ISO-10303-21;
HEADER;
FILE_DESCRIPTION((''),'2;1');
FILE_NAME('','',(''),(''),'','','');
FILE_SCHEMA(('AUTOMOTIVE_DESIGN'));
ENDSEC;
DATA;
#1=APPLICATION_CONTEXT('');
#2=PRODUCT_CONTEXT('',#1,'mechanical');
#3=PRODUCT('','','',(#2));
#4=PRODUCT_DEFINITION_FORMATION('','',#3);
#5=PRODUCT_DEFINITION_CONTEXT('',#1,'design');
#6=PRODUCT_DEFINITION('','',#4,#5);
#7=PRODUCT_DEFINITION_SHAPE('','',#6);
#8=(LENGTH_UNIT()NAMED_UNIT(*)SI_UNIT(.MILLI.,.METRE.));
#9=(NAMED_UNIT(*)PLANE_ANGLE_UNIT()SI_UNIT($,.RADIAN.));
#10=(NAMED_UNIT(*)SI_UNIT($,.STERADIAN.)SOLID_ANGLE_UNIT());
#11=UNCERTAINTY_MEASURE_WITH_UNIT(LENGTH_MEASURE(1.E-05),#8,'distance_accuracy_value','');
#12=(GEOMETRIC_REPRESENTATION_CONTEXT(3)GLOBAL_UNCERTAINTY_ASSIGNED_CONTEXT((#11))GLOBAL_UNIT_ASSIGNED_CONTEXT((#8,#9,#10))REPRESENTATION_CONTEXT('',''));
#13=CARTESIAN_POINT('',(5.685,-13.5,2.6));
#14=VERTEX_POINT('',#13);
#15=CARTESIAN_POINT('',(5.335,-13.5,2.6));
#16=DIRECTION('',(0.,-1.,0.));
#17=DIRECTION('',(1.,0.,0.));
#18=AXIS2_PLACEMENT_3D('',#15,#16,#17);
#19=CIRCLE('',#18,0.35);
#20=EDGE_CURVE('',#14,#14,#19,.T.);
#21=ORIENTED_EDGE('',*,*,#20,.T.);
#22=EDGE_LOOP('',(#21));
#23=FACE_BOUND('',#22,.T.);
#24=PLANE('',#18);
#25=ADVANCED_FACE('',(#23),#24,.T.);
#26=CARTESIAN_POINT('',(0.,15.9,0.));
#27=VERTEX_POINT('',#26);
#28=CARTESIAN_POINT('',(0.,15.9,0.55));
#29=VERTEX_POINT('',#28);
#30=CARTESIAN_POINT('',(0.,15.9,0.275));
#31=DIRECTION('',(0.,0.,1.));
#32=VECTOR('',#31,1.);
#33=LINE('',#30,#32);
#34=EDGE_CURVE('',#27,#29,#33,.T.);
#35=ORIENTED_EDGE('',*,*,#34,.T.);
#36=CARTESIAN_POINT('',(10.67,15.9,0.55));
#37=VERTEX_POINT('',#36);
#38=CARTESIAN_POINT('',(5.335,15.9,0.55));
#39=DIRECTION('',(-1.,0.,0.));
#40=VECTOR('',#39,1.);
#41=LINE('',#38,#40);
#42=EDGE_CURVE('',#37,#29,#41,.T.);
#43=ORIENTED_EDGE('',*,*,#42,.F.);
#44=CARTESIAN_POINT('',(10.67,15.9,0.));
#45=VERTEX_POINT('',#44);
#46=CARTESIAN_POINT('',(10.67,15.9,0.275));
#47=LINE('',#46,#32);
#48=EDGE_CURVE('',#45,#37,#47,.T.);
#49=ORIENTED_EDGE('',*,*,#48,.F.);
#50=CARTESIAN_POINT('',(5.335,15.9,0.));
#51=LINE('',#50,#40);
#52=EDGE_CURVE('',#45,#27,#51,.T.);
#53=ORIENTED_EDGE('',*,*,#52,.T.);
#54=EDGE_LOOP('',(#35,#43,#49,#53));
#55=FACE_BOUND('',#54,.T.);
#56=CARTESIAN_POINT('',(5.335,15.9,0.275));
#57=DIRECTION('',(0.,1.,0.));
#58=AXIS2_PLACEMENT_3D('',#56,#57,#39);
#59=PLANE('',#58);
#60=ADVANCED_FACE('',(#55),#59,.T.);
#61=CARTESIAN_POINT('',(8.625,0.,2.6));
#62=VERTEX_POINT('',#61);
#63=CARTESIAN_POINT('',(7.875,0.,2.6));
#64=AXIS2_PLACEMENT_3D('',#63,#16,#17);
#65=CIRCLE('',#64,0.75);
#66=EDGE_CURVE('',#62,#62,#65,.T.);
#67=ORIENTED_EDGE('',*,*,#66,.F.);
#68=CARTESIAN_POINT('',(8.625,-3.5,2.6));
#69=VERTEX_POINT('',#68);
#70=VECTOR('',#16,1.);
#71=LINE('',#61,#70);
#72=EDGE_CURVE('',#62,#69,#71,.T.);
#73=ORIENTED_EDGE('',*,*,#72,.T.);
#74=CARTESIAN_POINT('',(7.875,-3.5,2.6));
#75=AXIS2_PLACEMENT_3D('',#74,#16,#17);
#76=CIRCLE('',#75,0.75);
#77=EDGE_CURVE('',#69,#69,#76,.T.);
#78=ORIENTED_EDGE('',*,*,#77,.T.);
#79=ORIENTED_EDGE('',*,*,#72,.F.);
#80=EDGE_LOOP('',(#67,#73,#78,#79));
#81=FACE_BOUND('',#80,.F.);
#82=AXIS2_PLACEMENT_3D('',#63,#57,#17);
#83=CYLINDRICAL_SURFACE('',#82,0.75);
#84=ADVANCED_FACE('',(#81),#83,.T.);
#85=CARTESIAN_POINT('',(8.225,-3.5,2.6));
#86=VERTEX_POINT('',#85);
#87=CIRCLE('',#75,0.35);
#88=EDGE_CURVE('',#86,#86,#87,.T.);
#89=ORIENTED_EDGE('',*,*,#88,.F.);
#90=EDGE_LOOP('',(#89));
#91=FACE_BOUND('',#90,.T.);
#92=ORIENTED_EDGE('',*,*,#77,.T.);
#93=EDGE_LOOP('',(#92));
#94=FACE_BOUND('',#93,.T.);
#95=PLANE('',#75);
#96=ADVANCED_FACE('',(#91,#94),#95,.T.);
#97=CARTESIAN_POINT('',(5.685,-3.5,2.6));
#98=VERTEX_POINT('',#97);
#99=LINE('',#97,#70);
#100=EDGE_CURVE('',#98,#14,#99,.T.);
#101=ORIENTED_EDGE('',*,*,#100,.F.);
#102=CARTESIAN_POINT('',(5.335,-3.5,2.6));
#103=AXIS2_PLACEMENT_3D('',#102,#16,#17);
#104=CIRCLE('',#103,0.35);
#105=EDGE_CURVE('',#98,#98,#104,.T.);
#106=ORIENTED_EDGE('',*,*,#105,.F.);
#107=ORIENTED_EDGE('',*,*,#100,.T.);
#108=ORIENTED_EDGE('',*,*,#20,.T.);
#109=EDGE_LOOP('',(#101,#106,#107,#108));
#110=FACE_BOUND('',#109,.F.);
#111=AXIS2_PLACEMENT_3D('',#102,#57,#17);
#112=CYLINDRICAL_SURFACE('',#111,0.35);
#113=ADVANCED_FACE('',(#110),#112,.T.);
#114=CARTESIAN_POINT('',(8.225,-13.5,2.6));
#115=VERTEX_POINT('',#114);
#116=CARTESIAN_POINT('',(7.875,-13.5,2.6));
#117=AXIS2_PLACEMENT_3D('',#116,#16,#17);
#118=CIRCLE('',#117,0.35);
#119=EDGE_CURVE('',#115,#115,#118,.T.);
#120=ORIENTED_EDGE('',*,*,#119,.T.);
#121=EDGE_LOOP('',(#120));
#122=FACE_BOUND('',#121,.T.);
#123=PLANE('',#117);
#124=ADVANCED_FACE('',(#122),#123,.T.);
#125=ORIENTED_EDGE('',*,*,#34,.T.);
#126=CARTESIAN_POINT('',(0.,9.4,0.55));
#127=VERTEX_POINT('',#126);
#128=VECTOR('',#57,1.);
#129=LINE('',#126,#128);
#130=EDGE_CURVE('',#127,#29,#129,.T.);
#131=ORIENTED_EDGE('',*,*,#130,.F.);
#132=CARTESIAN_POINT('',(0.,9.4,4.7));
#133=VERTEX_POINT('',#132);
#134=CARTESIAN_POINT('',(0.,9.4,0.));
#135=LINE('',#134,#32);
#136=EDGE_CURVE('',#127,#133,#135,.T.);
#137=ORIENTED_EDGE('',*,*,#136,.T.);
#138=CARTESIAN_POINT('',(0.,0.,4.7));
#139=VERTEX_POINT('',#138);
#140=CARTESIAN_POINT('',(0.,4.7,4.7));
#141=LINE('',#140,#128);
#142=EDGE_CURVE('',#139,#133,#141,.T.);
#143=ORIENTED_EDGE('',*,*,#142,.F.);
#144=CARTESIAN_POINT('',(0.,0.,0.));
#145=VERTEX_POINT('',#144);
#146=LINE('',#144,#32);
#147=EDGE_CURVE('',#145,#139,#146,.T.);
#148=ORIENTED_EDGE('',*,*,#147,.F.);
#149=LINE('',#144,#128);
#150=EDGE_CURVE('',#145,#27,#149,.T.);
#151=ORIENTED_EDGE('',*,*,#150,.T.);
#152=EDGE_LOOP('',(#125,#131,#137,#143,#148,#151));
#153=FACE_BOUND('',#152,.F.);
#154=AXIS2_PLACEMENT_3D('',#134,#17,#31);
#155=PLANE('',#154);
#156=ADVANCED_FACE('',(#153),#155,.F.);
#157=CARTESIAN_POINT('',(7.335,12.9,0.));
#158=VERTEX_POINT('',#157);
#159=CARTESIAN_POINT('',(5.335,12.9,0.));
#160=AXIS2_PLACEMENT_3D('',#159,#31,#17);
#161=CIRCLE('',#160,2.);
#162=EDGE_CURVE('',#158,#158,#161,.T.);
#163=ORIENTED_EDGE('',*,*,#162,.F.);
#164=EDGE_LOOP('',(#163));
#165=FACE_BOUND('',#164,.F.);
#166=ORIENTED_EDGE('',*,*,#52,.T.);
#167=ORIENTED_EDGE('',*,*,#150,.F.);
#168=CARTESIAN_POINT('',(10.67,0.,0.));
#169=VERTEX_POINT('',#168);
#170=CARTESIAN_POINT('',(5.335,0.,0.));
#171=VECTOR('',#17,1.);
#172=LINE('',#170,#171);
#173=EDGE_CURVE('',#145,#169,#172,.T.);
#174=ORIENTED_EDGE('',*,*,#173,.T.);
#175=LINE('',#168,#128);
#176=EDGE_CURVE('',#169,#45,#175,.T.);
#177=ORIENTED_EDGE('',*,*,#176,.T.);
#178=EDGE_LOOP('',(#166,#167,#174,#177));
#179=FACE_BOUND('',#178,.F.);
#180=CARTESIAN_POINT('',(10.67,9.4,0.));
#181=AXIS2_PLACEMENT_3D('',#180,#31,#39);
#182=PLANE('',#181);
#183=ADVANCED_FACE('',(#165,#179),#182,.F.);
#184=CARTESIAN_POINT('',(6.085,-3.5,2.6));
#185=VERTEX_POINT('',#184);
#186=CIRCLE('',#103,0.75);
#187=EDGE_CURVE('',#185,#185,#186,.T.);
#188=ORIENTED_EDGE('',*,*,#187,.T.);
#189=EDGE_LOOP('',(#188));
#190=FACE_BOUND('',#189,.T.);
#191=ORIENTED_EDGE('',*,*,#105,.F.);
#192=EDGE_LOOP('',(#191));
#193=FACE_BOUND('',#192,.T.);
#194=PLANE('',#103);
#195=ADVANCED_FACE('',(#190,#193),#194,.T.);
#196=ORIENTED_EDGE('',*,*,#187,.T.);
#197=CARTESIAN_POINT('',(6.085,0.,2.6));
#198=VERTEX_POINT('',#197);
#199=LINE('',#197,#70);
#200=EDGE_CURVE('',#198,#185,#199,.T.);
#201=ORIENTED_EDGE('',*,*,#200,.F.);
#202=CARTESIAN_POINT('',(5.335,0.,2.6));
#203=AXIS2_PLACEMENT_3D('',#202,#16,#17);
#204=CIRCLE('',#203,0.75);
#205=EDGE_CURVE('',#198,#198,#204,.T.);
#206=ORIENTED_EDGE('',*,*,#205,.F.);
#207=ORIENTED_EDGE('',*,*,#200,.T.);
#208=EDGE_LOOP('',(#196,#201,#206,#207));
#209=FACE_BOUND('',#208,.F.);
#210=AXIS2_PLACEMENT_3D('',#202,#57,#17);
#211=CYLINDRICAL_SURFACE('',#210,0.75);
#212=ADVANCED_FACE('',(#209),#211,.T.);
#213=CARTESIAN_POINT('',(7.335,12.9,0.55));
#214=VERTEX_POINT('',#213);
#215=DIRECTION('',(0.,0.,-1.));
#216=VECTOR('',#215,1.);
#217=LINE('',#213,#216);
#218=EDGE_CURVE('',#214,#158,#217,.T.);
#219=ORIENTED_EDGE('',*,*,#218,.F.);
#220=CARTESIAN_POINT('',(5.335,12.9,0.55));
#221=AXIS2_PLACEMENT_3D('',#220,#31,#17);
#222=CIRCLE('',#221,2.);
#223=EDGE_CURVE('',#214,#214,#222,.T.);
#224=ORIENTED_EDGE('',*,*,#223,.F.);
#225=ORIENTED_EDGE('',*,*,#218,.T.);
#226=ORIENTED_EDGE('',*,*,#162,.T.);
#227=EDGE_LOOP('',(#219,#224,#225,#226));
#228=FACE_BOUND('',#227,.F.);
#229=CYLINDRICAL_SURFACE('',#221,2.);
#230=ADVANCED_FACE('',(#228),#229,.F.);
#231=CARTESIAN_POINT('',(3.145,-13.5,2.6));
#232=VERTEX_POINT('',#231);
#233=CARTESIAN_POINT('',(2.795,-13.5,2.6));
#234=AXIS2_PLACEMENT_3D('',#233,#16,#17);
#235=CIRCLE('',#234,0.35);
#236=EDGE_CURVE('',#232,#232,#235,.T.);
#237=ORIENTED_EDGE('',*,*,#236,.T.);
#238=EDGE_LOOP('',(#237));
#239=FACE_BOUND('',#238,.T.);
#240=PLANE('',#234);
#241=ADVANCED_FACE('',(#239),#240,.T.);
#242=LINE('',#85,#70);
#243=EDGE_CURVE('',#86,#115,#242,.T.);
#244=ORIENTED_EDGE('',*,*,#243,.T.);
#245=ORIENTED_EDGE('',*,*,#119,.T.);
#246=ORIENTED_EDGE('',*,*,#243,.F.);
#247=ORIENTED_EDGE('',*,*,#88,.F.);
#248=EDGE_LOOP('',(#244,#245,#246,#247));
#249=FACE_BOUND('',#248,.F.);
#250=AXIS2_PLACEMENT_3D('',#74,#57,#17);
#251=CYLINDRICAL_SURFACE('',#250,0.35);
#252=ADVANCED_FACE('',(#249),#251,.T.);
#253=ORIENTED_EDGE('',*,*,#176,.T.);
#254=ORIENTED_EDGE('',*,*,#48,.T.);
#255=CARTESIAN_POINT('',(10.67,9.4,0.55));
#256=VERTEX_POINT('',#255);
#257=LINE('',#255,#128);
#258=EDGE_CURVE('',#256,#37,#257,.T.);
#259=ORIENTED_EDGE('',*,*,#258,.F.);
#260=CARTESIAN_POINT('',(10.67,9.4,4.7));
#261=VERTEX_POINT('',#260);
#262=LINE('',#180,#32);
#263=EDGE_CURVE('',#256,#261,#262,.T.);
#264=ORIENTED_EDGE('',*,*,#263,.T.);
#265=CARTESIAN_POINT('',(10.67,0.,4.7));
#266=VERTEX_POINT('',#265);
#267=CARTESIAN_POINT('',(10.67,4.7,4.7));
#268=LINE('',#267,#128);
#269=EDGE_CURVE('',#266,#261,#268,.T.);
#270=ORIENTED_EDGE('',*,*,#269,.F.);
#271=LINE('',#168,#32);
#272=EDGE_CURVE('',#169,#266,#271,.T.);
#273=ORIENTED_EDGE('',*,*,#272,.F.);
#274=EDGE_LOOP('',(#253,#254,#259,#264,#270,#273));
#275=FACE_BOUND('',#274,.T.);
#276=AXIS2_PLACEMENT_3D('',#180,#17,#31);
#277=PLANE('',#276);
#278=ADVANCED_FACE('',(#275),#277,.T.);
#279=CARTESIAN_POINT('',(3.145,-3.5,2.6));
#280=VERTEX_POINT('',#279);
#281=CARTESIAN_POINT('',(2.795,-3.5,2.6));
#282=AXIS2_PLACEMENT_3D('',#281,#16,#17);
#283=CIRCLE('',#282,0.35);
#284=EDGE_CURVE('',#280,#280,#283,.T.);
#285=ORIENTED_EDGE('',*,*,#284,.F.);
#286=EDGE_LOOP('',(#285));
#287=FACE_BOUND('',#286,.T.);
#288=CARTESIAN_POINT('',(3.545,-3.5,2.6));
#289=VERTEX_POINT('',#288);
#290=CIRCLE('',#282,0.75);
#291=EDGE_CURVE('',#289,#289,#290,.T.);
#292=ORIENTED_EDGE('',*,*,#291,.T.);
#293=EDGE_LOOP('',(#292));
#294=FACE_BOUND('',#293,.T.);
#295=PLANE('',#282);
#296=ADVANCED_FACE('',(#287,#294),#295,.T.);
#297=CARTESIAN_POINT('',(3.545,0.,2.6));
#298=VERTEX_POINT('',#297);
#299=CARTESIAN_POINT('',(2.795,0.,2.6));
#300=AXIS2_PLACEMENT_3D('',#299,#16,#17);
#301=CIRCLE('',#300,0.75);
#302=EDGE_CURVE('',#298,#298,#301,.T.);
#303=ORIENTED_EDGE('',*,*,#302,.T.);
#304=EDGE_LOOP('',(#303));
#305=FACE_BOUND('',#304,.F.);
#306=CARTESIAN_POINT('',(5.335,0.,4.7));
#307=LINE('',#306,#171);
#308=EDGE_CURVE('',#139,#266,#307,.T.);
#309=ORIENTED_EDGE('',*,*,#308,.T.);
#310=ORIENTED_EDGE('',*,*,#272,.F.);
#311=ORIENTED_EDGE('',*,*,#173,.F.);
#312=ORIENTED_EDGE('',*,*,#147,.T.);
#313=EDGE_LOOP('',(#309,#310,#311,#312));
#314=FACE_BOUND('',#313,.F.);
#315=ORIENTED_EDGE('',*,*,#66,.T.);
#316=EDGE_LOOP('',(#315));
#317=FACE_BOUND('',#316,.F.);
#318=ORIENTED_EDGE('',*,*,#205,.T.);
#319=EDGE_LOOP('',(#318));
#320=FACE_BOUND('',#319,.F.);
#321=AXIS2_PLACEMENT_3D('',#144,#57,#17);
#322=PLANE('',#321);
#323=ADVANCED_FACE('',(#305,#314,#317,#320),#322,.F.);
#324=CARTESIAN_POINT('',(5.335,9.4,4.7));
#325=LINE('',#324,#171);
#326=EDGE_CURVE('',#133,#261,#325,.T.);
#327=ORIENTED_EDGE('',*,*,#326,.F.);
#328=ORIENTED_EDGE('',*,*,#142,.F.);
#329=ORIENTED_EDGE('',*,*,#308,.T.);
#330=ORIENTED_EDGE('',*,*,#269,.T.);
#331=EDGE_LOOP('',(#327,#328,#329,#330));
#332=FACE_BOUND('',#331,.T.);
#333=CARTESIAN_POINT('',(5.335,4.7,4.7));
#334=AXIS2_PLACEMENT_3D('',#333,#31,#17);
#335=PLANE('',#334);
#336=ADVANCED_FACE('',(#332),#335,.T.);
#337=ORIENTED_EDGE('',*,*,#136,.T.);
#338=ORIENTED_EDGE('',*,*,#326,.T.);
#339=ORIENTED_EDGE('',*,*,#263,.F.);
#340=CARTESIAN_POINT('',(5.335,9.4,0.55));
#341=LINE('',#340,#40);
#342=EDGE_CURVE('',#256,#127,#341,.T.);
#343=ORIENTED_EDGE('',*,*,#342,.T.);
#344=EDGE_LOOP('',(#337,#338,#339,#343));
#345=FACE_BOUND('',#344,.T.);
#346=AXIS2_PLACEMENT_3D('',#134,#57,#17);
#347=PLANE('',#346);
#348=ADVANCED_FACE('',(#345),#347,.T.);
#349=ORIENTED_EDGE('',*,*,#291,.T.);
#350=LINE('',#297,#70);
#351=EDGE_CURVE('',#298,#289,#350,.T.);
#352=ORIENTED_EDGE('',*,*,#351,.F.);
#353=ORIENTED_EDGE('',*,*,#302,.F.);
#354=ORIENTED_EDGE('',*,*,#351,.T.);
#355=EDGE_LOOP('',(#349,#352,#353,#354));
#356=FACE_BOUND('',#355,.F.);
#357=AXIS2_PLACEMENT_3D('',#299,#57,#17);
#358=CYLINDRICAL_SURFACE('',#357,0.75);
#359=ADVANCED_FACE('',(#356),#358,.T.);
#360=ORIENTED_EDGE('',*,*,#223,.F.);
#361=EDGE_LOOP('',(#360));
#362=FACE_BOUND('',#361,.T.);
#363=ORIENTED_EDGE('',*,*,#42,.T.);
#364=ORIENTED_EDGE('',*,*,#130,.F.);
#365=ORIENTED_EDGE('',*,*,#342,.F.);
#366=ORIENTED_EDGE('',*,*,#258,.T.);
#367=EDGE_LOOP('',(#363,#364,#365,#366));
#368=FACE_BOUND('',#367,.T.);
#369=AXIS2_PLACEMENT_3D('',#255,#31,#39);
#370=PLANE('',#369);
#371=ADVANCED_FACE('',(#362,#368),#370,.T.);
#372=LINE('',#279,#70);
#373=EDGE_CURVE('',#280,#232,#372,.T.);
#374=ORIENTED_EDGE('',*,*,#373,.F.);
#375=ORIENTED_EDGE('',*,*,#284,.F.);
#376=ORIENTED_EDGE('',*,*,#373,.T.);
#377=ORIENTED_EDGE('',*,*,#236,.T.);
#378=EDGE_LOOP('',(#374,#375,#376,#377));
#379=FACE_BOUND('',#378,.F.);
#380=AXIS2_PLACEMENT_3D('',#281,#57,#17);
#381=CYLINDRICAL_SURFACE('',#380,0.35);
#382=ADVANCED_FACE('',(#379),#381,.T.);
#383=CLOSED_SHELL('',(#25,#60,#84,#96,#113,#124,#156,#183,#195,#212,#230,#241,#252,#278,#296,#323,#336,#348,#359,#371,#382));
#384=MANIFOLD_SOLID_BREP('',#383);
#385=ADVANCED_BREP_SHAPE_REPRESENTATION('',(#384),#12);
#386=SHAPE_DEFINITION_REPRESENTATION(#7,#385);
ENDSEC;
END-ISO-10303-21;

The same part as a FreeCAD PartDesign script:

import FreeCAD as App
import Part
import Sketcher

V = App.Vector

doc = App.newDocument("Part")
body = doc.addObject("PartDesign::Body", "Body")

# Sketch on XY plane
sketch1 = doc.addObject("Sketcher::SketchObject", "Sketch")
body.addObject(sketch1)
sketch1.AttachmentSupport = (doc.XY_Plane, [""])
sketch1.MapMode = "FlatFace"
sketch1.addGeometry(Part.LineSegment(V(0, 9, 0), V(0, 0, 0)), False)
sketch1.addGeometry(Part.LineSegment(V(0, 0, 0), V(11, 0, 0)), False)
sketch1.addGeometry(Part.LineSegment(V(11, 0, 0), V(11, 9, 0)), False)
sketch1.addGeometry(Part.LineSegment(V(11, 9, 0), V(0, 9, 0)), False)
sketch1.addConstraint(Sketcher.Constraint("Coincident", 0, 2, 1, 1))
sketch1.addConstraint(Sketcher.Constraint("Coincident", 1, 2, 2, 1))
sketch1.addConstraint(Sketcher.Constraint("Coincident", 2, 2, 3, 1))
sketch1.addConstraint(Sketcher.Constraint("Coincident", 3, 2, 0, 1))
sketch1.addConstraint(Sketcher.Constraint("Vertical", 0))
sketch1.addConstraint(Sketcher.Constraint("Horizontal", 1))
sketch1.addConstraint(Sketcher.Constraint("Vertical", 2))
sketch1.addConstraint(Sketcher.Constraint("Horizontal", 3))
sketch1.addConstraint(Sketcher.Constraint("Coincident", 0, 2, -1, 1))
sketch1.addConstraint(Sketcher.Constraint("DistanceY", 0, 2, 0, 1, 9.4))
sketch1.addConstraint(Sketcher.Constraint("DistanceX", 1, 1, 1, 2, 10.67))
pad1 = doc.addObject("PartDesign::Pad", "Pad")
body.addObject(pad1)
pad1.Profile = sketch1
pad1.Length = 4.7

# Sketch on XZ plane
sketch2 = doc.addObject("Sketcher::SketchObject", "Sketch001")
body.addObject(sketch2)
sketch2.AttachmentSupport = (doc.XZ_Plane, [""])
sketch2.MapMode = "FlatFace"
sketch2.addGeometry(Part.Circle(V(2.8, 2.6, 0), V(0, 0, 1), 0.8), False)
sketch2.addGeometry(Part.Circle(V(5.3, 2.6, 0), V(0, 0, 1), 0.8), False)
sketch2.addGeometry(Part.Circle(V(7.9, 2.6, 0), V(0, 0, 1), 0.8), False)
sketch2.addConstraint(Sketcher.Constraint("Equal", 0, 1))
sketch2.addConstraint(Sketcher.Constraint("Equal", 1, 2))
sketch2.addConstraint(Sketcher.Constraint("Horizontal", 0, 3, 1, 3))
sketch2.addConstraint(Sketcher.Constraint("Horizontal", 1, 3, 2, 3))
sketch2.addConstraint(Sketcher.Constraint("Diameter", 0, 1.5))
sketch2.addConstraint(Sketcher.Constraint("DistanceY", -1, 1, 0, 3, 2.6))
sketch2.addConstraint(Sketcher.Constraint("DistanceX", 0, 3, 1, 3, 2.54))
sketch2.addConstraint(Sketcher.Constraint("DistanceX", 1, 3, 2, 3, 2.54))
sketch2.addConstraint(Sketcher.Constraint("DistanceX", -1, 1, 0, 3, 2.795))
pad2 = doc.addObject("PartDesign::Pad", "Pad001")
body.addObject(pad2)
pad2.Profile = sketch2
pad2.Length = 3.5

# Sketch on XZ plane
sketch3 = doc.addObject("Sketcher::SketchObject", "Sketch002")
body.addObject(sketch3)
sketch3.AttachmentSupport = (doc.XZ_Plane, [""])
sketch3.MapMode = "FlatFace"
sketch3.AttachmentOffset = App.Placement(V(0, 0, 3.5), App.Rotation())
sketch3.addGeometry(Part.Circle(V(2.79, 2.6, 0), V(0, 0, 1), 0.35), False)
sketch3.addGeometry(Part.Circle(V(5.33, 2.6, 0), V(0, 0, 1), 0.35), False)
sketch3.addGeometry(Part.Circle(V(7.88, 2.6, 0), V(0, 0, 1), 0.35), False)
sketch3.addConstraint(Sketcher.Constraint("Equal", 0, 1))
sketch3.addConstraint(Sketcher.Constraint("Equal", 1, 2))
sketch3.addConstraint(Sketcher.Constraint("Horizontal", 0, 3, 1, 3))
sketch3.addConstraint(Sketcher.Constraint("Horizontal", 1, 3, 2, 3))
sketch3.addConstraint(Sketcher.Constraint("Diameter", 0, 0.7))
sketch3.addConstraint(Sketcher.Constraint("DistanceY", -1, 1, 0, 3, 2.6))
sketch3.addConstraint(Sketcher.Constraint("DistanceX", 0, 3, 1, 3, 2.54))
sketch3.addConstraint(Sketcher.Constraint("DistanceX", 1, 3, 2, 3, 2.54))
sketch3.addConstraint(Sketcher.Constraint("DistanceX", -1, 1, 0, 3, 2.795))
pad3 = doc.addObject("PartDesign::Pad", "Pad002")
body.addObject(pad3)
pad3.Profile = sketch3
pad3.Length = 10

# Sketch on XZ plane
sketch4 = doc.addObject("Sketcher::SketchObject", "Sketch003")
body.addObject(sketch4)
sketch4.AttachmentSupport = (doc.XZ_Plane, [""])
sketch4.MapMode = "FlatFace"
sketch4.AttachmentOffset = App.Placement(V(0, 0, -9.4), App.Rotation())
sketch4.addGeometry(Part.LineSegment(V(10.7, 0.6, 0), V(10.7, 0, 0)), False)
sketch4.addGeometry(Part.LineSegment(V(10.7, 0, 0), V(0, 0, 0)), False)
sketch4.addGeometry(Part.LineSegment(V(0, 0, 0), V(0, 0.6, 0)), False)
sketch4.addGeometry(Part.LineSegment(V(0, 0.6, 0), V(10.7, 0.6, 0)), False)
sketch4.addConstraint(Sketcher.Constraint("Coincident", 0, 2, 1, 1))
sketch4.addConstraint(Sketcher.Constraint("Coincident", 1, 2, 2, 1))
sketch4.addConstraint(Sketcher.Constraint("Coincident", 2, 2, 3, 1))
sketch4.addConstraint(Sketcher.Constraint("Coincident", 3, 2, 0, 1))
sketch4.addConstraint(Sketcher.Constraint("Vertical", 0))
sketch4.addConstraint(Sketcher.Constraint("Horizontal", 1))
sketch4.addConstraint(Sketcher.Constraint("Vertical", 2))
sketch4.addConstraint(Sketcher.Constraint("Horizontal", 3))
sketch4.addConstraint(Sketcher.Constraint("Coincident", 1, 2, -1, 1))
sketch4.addConstraint(Sketcher.Constraint("DistanceX", 1, 2, 1, 1, 10.67))
sketch4.addConstraint(Sketcher.Constraint("DistanceY", 0, 2, 0, 1, 0.55))
pad4 = doc.addObject("PartDesign::Pad", "Pad003")
body.addObject(pad4)
pad4.Profile = sketch4
pad4.Length = 6.5
pad4.Reversed = True

# Sketch on XY plane
sketch5 = doc.addObject("Sketcher::SketchObject", "Sketch004")
body.addObject(sketch5)
sketch5.AttachmentSupport = (doc.XY_Plane, [""])
sketch5.MapMode = "FlatFace"
sketch5.AttachmentOffset = App.Placement(V(0, 0, 0.55), App.Rotation())
sketch5.addGeometry(Part.Circle(V(5.3, 12.9, 0), V(0, 0, 1), 2), False)
sketch5.addConstraint(Sketcher.Constraint("Diameter", 0, 4.0))
sketch5.addConstraint(Sketcher.Constraint("DistanceY", -1, 1, 0, 3, 12.9))
sketch5.addConstraint(Sketcher.Constraint("DistanceX", -1, 1, 0, 3, 5.335))
pocket1 = doc.addObject("PartDesign::Pocket", "Pocket")
body.addObject(pocket1)
pocket1.Profile = sketch5
pocket1.Length = 5

doc.recompute()
